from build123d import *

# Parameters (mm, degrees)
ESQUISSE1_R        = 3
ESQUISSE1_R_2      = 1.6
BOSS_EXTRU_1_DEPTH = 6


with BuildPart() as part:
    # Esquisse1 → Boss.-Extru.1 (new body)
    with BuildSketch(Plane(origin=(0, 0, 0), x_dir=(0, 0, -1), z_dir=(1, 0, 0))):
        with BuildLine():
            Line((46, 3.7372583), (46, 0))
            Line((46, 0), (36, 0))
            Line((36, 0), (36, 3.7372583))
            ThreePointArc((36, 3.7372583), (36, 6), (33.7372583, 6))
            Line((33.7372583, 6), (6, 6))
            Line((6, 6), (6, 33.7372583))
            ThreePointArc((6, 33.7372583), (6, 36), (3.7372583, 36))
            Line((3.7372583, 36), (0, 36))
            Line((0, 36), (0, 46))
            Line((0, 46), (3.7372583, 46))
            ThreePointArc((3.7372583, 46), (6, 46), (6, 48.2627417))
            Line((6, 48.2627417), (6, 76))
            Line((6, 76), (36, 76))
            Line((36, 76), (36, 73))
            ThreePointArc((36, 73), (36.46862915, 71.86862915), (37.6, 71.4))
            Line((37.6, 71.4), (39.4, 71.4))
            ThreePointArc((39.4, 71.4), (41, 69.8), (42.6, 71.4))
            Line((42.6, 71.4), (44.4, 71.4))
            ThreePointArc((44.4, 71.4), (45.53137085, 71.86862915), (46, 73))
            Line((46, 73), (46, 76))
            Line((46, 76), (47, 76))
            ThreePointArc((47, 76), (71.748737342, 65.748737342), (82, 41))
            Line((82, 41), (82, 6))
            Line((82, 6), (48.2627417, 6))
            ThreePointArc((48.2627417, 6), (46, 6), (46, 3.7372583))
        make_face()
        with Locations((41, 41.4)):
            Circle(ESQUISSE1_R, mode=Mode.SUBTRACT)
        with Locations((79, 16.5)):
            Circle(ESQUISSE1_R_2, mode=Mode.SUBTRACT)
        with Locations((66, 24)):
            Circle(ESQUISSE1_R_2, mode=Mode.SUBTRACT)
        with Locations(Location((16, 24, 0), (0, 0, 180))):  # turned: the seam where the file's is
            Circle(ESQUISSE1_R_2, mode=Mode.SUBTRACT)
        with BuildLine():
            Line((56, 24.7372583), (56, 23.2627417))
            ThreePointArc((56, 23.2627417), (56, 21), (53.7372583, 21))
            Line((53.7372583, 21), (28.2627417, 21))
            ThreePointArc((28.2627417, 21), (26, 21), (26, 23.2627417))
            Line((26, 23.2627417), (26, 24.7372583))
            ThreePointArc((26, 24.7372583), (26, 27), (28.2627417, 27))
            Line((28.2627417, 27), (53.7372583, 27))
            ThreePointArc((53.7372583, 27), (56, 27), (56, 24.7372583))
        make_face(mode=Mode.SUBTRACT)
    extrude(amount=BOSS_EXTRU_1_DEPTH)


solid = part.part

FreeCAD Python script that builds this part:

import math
import FreeCAD as App
import Part
import Sketcher

V = App.Vector
Q = App.Units.Quantity

doc = App.newDocument("Part")
body = doc.addObject("PartDesign::Body", "Body")

sketch1 = body.newObject("Sketcher::SketchObject", "Sketch")
sketch1.AttachmentSupport = (doc.getObject("YZ_Plane"), [""])
sketch1.MapMode = "FlatFace"
sketch1.addGeometry(Part.LineSegment(V(0, -46, 0), V(3.737258, -46, 0)), False)
sketch1.addGeometry(Part.ArcOfCircle(Part.Circle(V(4.868629, -47.131371, 0), V(0, 0, 1), 1.6), math.radians(-45), math.radians(135)), False)
sketch1.addGeometry(Part.LineSegment(V(6, -48.262742, 0), V(6, -82, 0)), False)
sketch1.addGeometry(Part.LineSegment(V(6, -82, 0), V(41, -82, 0)), False)
sketch1.addGeometry(Part.ArcOfCircle(Part.Circle(V(41, -47, 0), V(0, 0, 1), 35), math.radians(-90), math.radians(0)), False)
sketch1.addGeometry(Part.LineSegment(V(76, -47, 0), V(76, -46, 0)), False)
sketch1.addGeometry(Part.LineSegment(V(76, -46, 0), V(73, -46, 0)), False)
sketch1.addGeometry(Part.ArcOfCircle(Part.Circle(V(73, -44.4, 0), V(0, 0, 1), 1.6), math.radians(180), math.radians(270)), False)
sketch1.addGeometry(Part.LineSegment(V(71.4, -44.4, 0), V(71.4, -42.6, 0)), False)
sketch1.addGeometry(Part.ArcOfCircle(Part.Circle(V(71.4, -41, 0), V(0, 0, 1), 1.6), math.radians(90), math.radians(270)), False)
sketch1.addGeometry(Part.LineSegment(V(71.4, -39.4, 0), V(71.4, -37.6, 0)), False)
sketch1.addGeometry(Part.ArcOfCircle(Part.Circle(V(73, -37.6, 0), V(0, 0, 1), 1.6), math.radians(90), math.radians(180)), False)
sketch1.addGeometry(Part.LineSegment(V(73, -36, 0), V(76, -36, 0)), False)
sketch1.addGeometry(Part.LineSegment(V(76, -36, 0), V(76, -6, 0)), False)
sketch1.addGeometry(Part.LineSegment(V(76, -6, 0), V(48.262742, -6, 0)), False)
sketch1.addGeometry(Part.ArcOfCircle(Part.Circle(V(47.131371, -4.868629, 0), V(0, 0, 1), 1.6), math.radians(135), math.radians(315)), False)
sketch1.addGeometry(Part.LineSegment(V(46, -3.737258, 0), V(46, 0, 0)), False)
sketch1.addGeometry(Part.LineSegment(V(46, 0, 0), V(36, 0, 0)), False)
sketch1.addGeometry(Part.LineSegment(V(36, 0, 0), V(36, -3.737258, 0)), False)
sketch1.addGeometry(Part.ArcOfCircle(Part.Circle(V(34.868629, -4.868629, 0), V(0, 0, 1), 1.6), math.radians(-135), math.radians(45)), False)
sketch1.addGeometry(Part.LineSegment(V(33.737258, -6, 0), V(6, -6, 0)), False)
sketch1.addGeometry(Part.LineSegment(V(6, -6, 0), V(6, -33.737258, 0)), False)
sketch1.addGeometry(Part.ArcOfCircle(Part.Circle(V(4.868629, -34.868629, 0), V(0, 0, 1), 1.6), math.radians(-135), math.radians(45)), False)
sketch1.addGeometry(Part.LineSegment(V(3.737258, -36, 0), V(0, -36, 0)), False)
sketch1.addGeometry(Part.LineSegment(V(0, -36, 0), V(0, -46, 0)), False)
sketch1.addGeometry(Part.Circle(V(16.5, -79, 0), V(0, 0, 1), 1.6), False)
sketch1.addGeometry(Part.Circle(V(24, -66, 0), V(0, 0, 1), 1.6), False)
sketch1.addGeometry(Part.LineSegment(V(24.737258, -56, 0), V(23.262742, -56, 0)), False)
sketch1.addGeometry(Part.ArcOfCircle(Part.Circle(V(22.131371, -54.868629, 0), V(0, 0, 1), 1.6), math.radians(135), math.radians(315)), False)
sketch1.addGeometry(Part.LineSegment(V(21, -53.737258, 0), V(21, -28.262742, 0)), False)
sketch1.addGeometry(Part.ArcOfCircle(Part.Circle(V(22.131371, -27.131371, 0), V(0, 0, 1), 1.6), math.radians(45), math.radians(225)), False)
sketch1.addGeometry(Part.LineSegment(V(23.262742, -26, 0), V(24.737258, -26, 0)), False)
sketch1.addGeometry(Part.ArcOfCircle(Part.Circle(V(25.868629, -27.131371, 0), V(0, 0, 1), 1.6), math.radians(-45), math.radians(135)), False)
sketch1.addGeometry(Part.LineSegment(V(27, -28.262742, 0), V(27, -53.737258, 0)), False)
sketch1.addGeometry(Part.ArcOfCircle(Part.Circle(V(25.868629, -54.868629, 0), V(0, 0, 1), 1.6), math.radians(-135), math.radians(45)), False)
sketch1.addGeometry(Part.Circle(V(24, -16, 0), V(0, 0, 1), 1.6), False)
sketch1.addGeometry(Part.Circle(V(41.4, -41, 0), V(0, 0, 1), 3), False)
sketch1.addConstraint(Sketcher.Constraint("Coincident", 0, 2, 1, 2))
sketch1.addConstraint(Sketcher.Constraint("Coincident", 1, 1, 2, 1))
sketch1.addConstraint(Sketcher.Constraint("Coincident", 2, 2, 3, 1))
sketch1.addConstraint(Sketcher.Constraint("Tangent", 3, 2, 4, 1))
sketch1.addConstraint(Sketcher.Constraint("Tangent", 4, 2, 5, 1))
sketch1.addConstraint(Sketcher.Constraint("Coincident", 5, 2, 6, 1))
sketch1.addConstraint(Sketcher.Constraint("Tangent", 6, 2, 7, 2))
sketch1.addConstraint(Sketcher.Constraint("Tangent", 7, 1, 8, 1))
sketch1.addConstraint(Sketcher.Constraint("Coincident", 8, 2, 9, 2))
sketch1.addConstraint(Sketcher.Constraint("Coincident", 9, 1, 10, 1))
sketch1.addConstraint(Sketcher.Constraint("Tangent", 10, 2, 11, 2))
sketch1.addConstraint(Sketcher.Constraint("Tangent", 11, 1, 12, 1))
sketch1.addConstraint(Sketcher.Constraint("Coincident", 12, 2, 13, 1))
sketch1.addConstraint(Sketcher.Constraint("Coincident", 13, 2, 14, 1))
sketch1.addConstraint(Sketcher.Constraint("Coincident", 14, 2, 15, 2))
sketch1.addConstraint(Sketcher.Constraint("Coincident", 15, 1, 16, 1))
sketch1.addConstraint(Sketcher.Constraint("Coincident", 16, 2, 17, 1))
sketch1.addConstraint(Sketcher.Constraint("Coincident", 17, 2, 18, 1))
sketch1.addConstraint(Sketcher.Constraint("Coincident", 18, 2, 19, 2))
sketch1.addConstraint(Sketcher.Constraint("Coincident", 19, 1, 20, 1))
sketch1.addConstraint(Sketcher.Constraint("Coincident", 20, 2, 21, 1))
sketch1.addConstraint(Sketcher.Constraint("Coincident", 21, 2, 22, 2))
sketch1.addConstraint(Sketcher.Constraint("Coincident", 22, 1, 23, 1))
sketch1.addConstraint(Sketcher.Constraint("Coincident", 23, 2, 24, 1))
sketch1.addConstraint(Sketcher.Constraint("Coincident", 24, 2, 0, 1))
sketch1.addConstraint(Sketcher.Constraint("Coincident", 27, 2, 28, 2))
sketch1.addConstraint(Sketcher.Constraint("Coincident", 28, 1, 29, 1))
sketch1.addConstraint(Sketcher.Constraint("Coincident", 29, 2, 30, 2))
sketch1.addConstraint(Sketcher.Constraint("Coincident", 30, 1, 31, 1))
sketch1.addConstraint(Sketcher.Constraint("Coincident", 31, 2, 32, 2))
sketch1.addConstraint(Sketcher.Constraint("Coincident", 32, 1, 33, 1))
sketch1.addConstraint(Sketcher.Constraint("Coincident", 33, 2, 34, 2))
sketch1.addConstraint(Sketcher.Constraint("Coincident", 34, 1, 27, 1))
sketch1.addConstraint(Sketcher.Constraint("Horizontal", 0))
sketch1.addConstraint(Sketcher.Constraint("Vertical", 2))
sketch1.addConstraint(Sketcher.Constraint("Horizontal", 3))
sketch1.addConstraint(Sketcher.Constraint("Vertical", 5))
sketch1.addConstraint(Sketcher.Constraint("Horizontal", 6))
sketch1.addConstraint(Sketcher.Constraint("Vertical", 8))
sketch1.addConstraint(Sketcher.Constraint("Vertical", 10))
sketch1.addConstraint(Sketcher.Constraint("Horizontal", 12))
sketch1.addConstraint(Sketcher.Constraint("Vertical", 13))
sketch1.addConstraint(Sketcher.Constraint("Horizontal", 14))
sketch1.addConstraint(Sketcher.Constraint("Vertical", 16))
sketch1.addConstraint(Sketcher.Constraint("Horizontal", 17))
sketch1.addConstraint(Sketcher.Constraint("Vertical", 18))
sketch1.addConstraint(Sketcher.Constraint("Horizontal", 20))
sketch1.addConstraint(Sketcher.Constraint("Vertical", 21))
sketch1.addConstraint(Sketcher.Constraint("Horizontal", 23))
sketch1.addConstraint(Sketcher.Constraint("Vertical", 24))
sketch1.addConstraint(Sketcher.Constraint("Horizontal", 27))
sketch1.addConstraint(Sketcher.Constraint("Vertical", 29))
sketch1.addConstraint(Sketcher.Constraint("Horizontal", 31))
sketch1.addConstraint(Sketcher.Constraint("Vertical", 33))
sketch1.addConstraint(Sketcher.Constraint("Equal", 1, 7))
sketch1.addConstraint(Sketcher.Constraint("Equal", 7, 9))
sketch1.addConstraint(Sketcher.Constraint("Equal", 9, 11))
sketch1.addConstraint(Sketcher.Constraint("Equal", 11, 15))
sketch1.addConstraint(Sketcher.Constraint("Equal", 15, 19))
sketch1.addConstraint(Sketcher.Constraint("Equal", 19, 22))
sketch1.addConstraint(Sketcher.Constraint("Equal", 22, 25))
sketch1.addConstraint(Sketcher.Constraint("Equal", 25, 26))
sketch1.addConstraint(Sketcher.Constraint("Equal", 26, 28))
sketch1.addConstraint(Sketcher.Constraint("Equal", 28, 30))
sketch1.addConstraint(Sketcher.Constraint("Equal", 30, 32))
sketch1.addConstraint(Sketcher.Constraint("Equal", 32, 34))
sketch1.addConstraint(Sketcher.Constraint("Equal", 34, 35))
sketch1.addConstraint(Sketcher.Constraint("PointOnObject", 16, 2, -1))
sketch1.addConstraint(Sketcher.Constraint("PointOnObject", 23, 2, -2))
sketch1.addConstraint(Sketcher.Constraint("Horizontal", 15, 3, 19, 3))
sketch1.addConstraint(Sketcher.Constraint("Horizontal", 30, 3, 32, 3))
sketch1.addConstraint(Sketcher.Constraint("Horizontal", 28, 3, 34, 3))
sketch1.addConstraint(Sketcher.Constraint("Horizontal", 9, 3, 36, 3))
sketch1.addConstraint(Sketcher.Constraint("Horizontal", 0, 2, 5, 2))
sketch1.addConstraint(Sketcher.Constraint("Horizontal", 15, 1, 18, 2))
sketch1.addConstraint(Sketcher.Constraint("Horizontal", 14, 2, 19, 1))
sketch1.addConstraint(Sketcher.Constraint("Horizontal", 12, 2, 22, 1))
sketch1.addConstraint(Sketcher.Constraint("Horizontal", 29, 2, 32, 1))
sketch1.addConstraint(Sketcher.Constraint("Horizontal", 28, 1, 33, 2))
sketch1.addConstraint(Sketcher.Constraint("Vertical", 7, 3, 11, 3))
sketch1.addConstraint(Sketcher.Constraint("Vertical", 1, 3, 22, 3))
sketch1.addConstraint(Sketcher.Constraint("Vertical", 28, 3, 30, 3))
sketch1.addConstraint(Sketcher.Constraint("Vertical", 26, 3, 35, 3))
sketch1.addConstraint(Sketcher.Constraint("Vertical", 9, 3, 7, 1))
sketch1.addConstraint(Sketcher.Constraint("Vertical", 5, 2, 12, 2))
sketch1.addConstraint(Sketcher.Constraint("Vertical", 2, 2, 20, 2))
sketch1.addConstraint(Sketcher.Constraint("Vertical", 0, 2, 22, 1))
sketch1.addConstraint(Sketcher.Constraint("Vertical", 27, 2, 30, 1))
sketch1.addConstraint(Sketcher.Constraint("Equal", 14, 20))
sketch1.addConstraint(Sketcher.Constraint("Equal", 8, 10))
sketch1.addConstraint(Sketcher.Constraint("Equal", 23, 16))
sketch1.addConstraint(Sketcher.Constraint("Equal", 20, 21))
sketch1.addConstraint(Sketcher.Constraint("Equal", 17, 24))
sketch1.addConstraint(Sketcher.Constraint("Diameter", 36, Q("6 mm")))
sketch1.addConstraint(Sketcher.Constraint("Radius", 4, Q("35 mm")))
sketch1.addConstraint(Sketcher.Constraint("Diameter", 25, Q("3.2 mm")))
sketch1.addConstraint(Sketcher.Constraint("DistanceX", 3, 1, 3, 2, Q("35 mm")))
sketch1.addConstraint(Sketcher.Constraint("DistanceX", 6, 2, 6, 1, Q("3 mm")))
sketch1.addConstraint(Sketcher.Constraint("DistanceX", 17, 2, 17, 1, Q("10 mm")))
sketch1.addConstraint(Sketcher.Constraint("DistanceY", 5, 1, 5, 2, Q("1 mm")))
sketch1.addConstraint(Sketcher.Constraint("DistanceY", 13, 1, 13, 2, Q("30 mm")))
sketch1.addConstraint(Sketcher.Constraint("DistanceX", -1, 1, 4, 3, Q("41 mm")))
sketch1.addConstraint(Sketcher.Constraint("DistanceY", 25, 3, -1, 1, Q("79 mm")))
sketch1.addConstraint(Sketcher.Constraint("DistanceX", -1, 1, 26, 3, Q("24 mm")))
sketch1.addConstraint(Sketcher.Constraint("DistanceY", 26, 3, -1, 1, Q("66 mm")))
sketch1.addConstraint(Sketcher.Constraint("DistanceY", 35, 3, -1, 1, Q("16 mm")))
sketch1.addConstraint(Sketcher.Constraint("DistanceY", 27, 2, -1, 1, Q("56 mm")))
sketch1.addConstraint(Sketcher.Constraint("DistanceX", -1, 1, 28, 1, Q("21 mm")))
sketch1.addConstraint(Sketcher.Constraint("DistanceY", 30, 1, -1, 1, Q("26 mm")))
sketch1.addConstraint(Sketcher.Constraint("DistanceX", -1, 1, 32, 1, Q("27 mm")))
sketch1.addConstraint(Sketcher.Constraint("DistanceX", 1, 3, 19, 3, Q("30 mm")))
sketch1.addConstraint(Sketcher.Constraint("DistanceY", 22, 3, 19, 3, Q("30 mm")))
sketch1.addConstraint(Sketcher.Constraint("DistanceY", 28, 3, 22, 3, Q("20 mm")))
sketch1.addConstraint(Sketcher.Constraint("DistanceX", 22, 3, 32, 3, Q("21 mm")))
sketch1.addConstraint(Sketcher.Constraint("DistanceX", -1, 1, 25, 3, Q("16.5 mm")))
sketch1.addConstraint(Sketcher.Constraint("DistanceX", -1, 1, 36, 3, Q("41.4 mm")))
sketch1.addConstraint(Sketcher.Constraint("DistanceX", -1, 1, 1, 3, Q("4.868629 mm")))
pad1 = body.newObject("PartDesign::Pad", "Pad")
pad1.Profile = sketch1
pad1.Length = 6

doc.recompute()
